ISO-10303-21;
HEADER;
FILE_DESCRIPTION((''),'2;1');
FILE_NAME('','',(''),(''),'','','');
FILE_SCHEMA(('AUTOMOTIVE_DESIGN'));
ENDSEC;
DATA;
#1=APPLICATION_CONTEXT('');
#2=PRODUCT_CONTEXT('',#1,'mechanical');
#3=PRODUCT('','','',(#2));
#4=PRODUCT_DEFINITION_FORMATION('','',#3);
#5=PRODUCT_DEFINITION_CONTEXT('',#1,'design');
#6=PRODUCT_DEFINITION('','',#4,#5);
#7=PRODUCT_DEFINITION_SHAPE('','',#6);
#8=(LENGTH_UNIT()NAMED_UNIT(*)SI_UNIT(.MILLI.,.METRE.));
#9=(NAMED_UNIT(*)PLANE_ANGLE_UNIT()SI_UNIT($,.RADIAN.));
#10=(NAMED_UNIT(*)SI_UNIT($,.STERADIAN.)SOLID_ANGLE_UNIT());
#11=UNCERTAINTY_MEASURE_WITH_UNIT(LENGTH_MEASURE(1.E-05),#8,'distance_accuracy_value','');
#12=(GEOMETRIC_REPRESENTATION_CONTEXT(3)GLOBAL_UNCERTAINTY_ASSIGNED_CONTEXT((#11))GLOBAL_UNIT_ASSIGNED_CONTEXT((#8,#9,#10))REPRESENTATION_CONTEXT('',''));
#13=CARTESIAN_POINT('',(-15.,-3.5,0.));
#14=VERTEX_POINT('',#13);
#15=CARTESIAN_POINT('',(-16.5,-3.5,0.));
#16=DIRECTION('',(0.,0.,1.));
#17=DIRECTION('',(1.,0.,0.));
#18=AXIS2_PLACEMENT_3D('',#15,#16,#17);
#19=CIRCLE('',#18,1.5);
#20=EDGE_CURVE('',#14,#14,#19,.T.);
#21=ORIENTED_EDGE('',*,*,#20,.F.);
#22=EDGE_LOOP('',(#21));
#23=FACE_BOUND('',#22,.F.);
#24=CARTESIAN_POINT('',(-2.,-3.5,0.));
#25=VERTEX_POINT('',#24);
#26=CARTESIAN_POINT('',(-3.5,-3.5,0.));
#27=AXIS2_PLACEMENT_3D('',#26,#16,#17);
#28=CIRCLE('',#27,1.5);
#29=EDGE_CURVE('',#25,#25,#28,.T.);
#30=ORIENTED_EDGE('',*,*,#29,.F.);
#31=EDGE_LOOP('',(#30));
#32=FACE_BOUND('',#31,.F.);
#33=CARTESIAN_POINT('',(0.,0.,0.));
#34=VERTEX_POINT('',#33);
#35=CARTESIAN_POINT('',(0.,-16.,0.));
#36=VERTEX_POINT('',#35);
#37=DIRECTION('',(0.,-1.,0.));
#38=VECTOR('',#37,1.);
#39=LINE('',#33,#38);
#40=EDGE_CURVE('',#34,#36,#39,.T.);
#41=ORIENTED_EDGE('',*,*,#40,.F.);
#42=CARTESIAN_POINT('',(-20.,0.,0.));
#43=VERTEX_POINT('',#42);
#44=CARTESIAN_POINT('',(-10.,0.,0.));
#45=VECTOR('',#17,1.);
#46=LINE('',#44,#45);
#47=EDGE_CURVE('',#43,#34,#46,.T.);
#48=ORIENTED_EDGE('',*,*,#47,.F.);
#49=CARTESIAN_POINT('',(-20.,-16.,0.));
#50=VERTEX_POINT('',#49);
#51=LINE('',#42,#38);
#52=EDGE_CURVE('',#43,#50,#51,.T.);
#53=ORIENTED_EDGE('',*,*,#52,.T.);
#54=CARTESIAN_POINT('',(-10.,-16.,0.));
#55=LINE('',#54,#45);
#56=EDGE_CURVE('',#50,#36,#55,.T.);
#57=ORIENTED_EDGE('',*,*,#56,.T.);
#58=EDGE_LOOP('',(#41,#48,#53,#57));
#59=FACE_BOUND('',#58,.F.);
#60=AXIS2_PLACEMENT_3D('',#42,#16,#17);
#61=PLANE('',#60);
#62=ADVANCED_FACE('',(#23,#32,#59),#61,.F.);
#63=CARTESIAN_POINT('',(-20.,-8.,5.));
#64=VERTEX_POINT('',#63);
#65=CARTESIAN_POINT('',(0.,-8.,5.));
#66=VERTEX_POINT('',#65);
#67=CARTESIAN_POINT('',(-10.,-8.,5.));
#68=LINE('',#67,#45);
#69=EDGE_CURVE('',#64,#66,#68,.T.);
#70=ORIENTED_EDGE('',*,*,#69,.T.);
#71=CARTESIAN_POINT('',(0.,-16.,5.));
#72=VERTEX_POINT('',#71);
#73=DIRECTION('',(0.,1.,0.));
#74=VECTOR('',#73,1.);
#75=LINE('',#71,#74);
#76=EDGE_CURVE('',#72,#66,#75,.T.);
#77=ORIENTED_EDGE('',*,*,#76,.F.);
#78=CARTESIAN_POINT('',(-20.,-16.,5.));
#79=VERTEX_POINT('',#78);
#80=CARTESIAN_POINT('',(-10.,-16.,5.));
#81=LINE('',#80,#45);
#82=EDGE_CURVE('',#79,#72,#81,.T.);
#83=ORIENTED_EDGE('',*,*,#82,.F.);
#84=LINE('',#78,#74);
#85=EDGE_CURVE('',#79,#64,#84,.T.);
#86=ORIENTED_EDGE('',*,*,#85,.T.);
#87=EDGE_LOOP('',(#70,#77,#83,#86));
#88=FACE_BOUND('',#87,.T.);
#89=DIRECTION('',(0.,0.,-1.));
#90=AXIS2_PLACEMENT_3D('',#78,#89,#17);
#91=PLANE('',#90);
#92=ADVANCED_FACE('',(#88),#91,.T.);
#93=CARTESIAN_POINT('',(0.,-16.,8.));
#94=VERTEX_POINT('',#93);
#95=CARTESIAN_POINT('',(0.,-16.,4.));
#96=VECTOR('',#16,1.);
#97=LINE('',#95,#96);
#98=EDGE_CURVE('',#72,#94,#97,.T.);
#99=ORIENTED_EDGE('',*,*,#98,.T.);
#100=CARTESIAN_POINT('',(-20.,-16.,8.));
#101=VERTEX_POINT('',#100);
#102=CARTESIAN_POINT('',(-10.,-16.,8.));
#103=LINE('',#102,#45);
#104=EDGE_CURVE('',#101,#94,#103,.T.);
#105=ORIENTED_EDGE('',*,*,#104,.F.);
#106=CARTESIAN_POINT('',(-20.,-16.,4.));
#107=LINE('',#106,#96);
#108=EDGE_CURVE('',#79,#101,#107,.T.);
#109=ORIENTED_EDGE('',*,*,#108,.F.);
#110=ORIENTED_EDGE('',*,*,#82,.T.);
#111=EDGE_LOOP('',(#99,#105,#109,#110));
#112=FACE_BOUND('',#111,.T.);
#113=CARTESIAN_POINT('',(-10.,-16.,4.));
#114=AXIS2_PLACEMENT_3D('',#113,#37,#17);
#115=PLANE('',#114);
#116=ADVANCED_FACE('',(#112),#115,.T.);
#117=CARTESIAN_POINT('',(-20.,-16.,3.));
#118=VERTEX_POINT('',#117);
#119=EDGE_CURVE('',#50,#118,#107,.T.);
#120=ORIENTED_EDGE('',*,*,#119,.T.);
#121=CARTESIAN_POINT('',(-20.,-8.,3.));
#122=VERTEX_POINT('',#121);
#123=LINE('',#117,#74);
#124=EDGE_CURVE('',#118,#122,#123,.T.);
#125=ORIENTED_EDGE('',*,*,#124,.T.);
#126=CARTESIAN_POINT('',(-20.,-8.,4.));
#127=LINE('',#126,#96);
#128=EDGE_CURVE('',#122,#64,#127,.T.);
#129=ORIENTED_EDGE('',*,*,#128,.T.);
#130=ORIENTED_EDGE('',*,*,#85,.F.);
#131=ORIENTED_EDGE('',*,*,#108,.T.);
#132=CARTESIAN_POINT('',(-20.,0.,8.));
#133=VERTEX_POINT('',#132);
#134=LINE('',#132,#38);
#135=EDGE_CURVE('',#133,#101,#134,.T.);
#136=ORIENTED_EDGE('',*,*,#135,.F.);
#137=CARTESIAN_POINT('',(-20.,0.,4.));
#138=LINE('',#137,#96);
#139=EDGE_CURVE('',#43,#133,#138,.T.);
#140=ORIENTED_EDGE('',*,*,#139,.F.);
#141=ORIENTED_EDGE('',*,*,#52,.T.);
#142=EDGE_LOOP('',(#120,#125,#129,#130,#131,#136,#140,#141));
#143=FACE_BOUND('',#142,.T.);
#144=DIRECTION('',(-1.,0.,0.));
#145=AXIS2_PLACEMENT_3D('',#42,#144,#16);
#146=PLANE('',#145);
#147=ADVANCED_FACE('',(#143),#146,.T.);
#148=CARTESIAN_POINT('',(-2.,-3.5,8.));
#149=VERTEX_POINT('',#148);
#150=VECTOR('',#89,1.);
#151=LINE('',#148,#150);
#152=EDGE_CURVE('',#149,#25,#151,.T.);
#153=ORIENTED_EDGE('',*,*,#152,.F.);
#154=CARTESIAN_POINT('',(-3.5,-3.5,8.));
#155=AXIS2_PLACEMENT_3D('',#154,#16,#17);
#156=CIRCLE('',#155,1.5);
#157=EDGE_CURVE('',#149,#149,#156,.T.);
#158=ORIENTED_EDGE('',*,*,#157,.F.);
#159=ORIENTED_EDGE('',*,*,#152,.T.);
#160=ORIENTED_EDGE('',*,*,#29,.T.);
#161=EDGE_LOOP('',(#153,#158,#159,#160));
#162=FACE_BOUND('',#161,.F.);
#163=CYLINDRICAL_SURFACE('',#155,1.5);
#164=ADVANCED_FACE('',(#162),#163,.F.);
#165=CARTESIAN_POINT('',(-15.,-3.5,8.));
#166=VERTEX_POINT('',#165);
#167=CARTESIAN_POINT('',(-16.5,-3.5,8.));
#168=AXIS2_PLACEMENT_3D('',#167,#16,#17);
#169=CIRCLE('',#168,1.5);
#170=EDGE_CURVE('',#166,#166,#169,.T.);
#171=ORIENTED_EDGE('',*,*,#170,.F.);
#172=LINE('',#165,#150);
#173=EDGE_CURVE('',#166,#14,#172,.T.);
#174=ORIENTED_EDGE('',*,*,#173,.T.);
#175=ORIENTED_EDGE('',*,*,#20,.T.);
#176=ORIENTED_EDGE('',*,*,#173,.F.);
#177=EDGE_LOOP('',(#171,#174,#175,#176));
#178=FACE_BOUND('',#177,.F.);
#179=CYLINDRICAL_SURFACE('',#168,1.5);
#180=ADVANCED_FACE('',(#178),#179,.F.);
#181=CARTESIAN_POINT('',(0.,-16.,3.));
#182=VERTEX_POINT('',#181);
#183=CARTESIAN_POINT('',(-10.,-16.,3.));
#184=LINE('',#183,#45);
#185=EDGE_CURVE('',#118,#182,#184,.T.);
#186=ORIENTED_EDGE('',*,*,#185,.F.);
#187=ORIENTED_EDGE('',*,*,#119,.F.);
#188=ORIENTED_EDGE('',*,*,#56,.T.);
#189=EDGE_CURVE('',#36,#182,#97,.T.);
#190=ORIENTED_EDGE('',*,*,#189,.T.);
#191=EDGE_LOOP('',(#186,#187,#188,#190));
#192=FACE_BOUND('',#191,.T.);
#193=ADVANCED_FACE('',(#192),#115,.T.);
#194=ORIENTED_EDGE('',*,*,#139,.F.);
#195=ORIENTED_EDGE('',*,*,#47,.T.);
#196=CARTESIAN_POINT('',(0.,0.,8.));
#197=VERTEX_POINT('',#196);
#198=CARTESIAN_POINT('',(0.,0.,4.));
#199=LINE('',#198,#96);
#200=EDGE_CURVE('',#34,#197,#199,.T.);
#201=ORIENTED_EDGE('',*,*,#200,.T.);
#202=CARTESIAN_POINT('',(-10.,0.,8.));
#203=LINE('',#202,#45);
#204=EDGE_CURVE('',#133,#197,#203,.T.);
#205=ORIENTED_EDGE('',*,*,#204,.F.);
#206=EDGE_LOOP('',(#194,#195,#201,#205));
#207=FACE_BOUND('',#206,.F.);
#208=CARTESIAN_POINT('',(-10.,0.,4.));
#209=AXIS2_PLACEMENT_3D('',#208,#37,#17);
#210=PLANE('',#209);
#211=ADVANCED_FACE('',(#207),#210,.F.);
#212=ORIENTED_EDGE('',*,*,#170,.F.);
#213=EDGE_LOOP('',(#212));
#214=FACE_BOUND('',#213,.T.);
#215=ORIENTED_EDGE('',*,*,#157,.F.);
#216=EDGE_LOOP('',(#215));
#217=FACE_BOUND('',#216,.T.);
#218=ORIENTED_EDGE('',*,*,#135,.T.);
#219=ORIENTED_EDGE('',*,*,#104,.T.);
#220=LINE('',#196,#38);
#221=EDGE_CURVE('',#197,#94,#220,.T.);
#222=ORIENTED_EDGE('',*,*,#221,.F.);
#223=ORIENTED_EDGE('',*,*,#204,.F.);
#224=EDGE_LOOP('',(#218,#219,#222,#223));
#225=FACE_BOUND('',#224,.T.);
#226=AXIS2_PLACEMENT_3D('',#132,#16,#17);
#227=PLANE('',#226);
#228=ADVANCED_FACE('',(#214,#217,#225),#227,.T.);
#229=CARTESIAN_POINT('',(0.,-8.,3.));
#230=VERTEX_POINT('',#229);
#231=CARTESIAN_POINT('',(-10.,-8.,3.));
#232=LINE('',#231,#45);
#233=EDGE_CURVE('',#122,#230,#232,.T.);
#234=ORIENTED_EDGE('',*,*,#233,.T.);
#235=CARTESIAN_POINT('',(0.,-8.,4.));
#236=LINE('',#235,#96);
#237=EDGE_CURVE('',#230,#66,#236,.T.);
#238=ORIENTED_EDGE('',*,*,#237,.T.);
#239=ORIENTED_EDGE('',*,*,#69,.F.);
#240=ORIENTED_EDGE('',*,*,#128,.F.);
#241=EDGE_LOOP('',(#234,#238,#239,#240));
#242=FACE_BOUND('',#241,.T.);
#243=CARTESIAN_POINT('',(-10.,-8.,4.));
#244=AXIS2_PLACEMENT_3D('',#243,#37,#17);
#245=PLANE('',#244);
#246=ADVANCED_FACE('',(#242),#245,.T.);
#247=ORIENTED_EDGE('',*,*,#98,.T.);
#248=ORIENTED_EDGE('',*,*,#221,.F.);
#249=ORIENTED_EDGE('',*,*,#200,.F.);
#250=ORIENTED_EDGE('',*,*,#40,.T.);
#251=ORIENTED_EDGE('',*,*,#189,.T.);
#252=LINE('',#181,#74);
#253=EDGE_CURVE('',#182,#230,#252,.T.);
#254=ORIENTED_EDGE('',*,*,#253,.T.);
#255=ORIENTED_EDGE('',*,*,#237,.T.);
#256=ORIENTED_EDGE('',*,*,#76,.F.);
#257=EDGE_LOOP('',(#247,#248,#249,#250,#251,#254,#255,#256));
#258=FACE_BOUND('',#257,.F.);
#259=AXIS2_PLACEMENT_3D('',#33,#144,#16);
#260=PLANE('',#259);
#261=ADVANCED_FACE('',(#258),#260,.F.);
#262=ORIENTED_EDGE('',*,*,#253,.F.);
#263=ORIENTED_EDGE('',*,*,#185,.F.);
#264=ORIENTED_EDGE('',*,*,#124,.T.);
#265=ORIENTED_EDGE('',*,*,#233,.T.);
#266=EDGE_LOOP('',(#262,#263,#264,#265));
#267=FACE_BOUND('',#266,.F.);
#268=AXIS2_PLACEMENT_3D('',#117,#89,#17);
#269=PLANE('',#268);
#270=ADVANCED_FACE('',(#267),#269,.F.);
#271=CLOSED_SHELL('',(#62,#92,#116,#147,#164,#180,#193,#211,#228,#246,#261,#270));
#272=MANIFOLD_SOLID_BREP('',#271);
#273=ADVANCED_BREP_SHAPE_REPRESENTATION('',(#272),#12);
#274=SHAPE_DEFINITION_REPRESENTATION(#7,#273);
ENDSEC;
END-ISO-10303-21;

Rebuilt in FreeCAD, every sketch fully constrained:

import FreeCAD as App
import Part
import Sketcher

V = App.Vector
Q = App.Units.Quantity

doc = App.newDocument("Part")
body = doc.addObject("PartDesign::Body", "Body")

sketch1 = body.newObject("Sketcher::SketchObject", "Sketch")
sketch1.AttachmentSupport = (doc.getObject("XZ_Plane"), [""])
sketch1.MapMode = "FlatFace"
sketch1.addGeometry([
    Part.LineSegment(V(-20, 8, 0), V(-20, 0, 0)),
    Part.LineSegment(V(-20, 0, 0), V(0, 0, 0)),
    Part.LineSegment(V(0, 0, 0), V(0, 8, 0)),
    Part.LineSegment(V(0, 8, 0), V(-20, 8, 0)),
], False)
sketch1.addConstraint([
    Sketcher.Constraint("Coincident", 0, 2, 1, 1),
    Sketcher.Constraint("Coincident", 1, 2, 2, 1),
    Sketcher.Constraint("Coincident", 2, 2, 3, 1),
    Sketcher.Constraint("Coincident", 3, 2, 0, 1),
    Sketcher.Constraint("Vertical", 0),
    Sketcher.Constraint("Horizontal", 1),
    Sketcher.Constraint("Vertical", 2),
    Sketcher.Constraint("Horizontal", 3),
    Sketcher.Constraint("Coincident", 1, 2, -1, 1),
    Sketcher.Constraint("DistanceX", 1, 1, 1, 2, Q("20 mm")),
    Sketcher.Constraint("DistanceY", 0, 2, 0, 1, Q("8 mm")),
])
pad1 = body.newObject("PartDesign::Pad", "Pad")
pad1.Profile = sketch1
pad1.Length = 16

sketch2 = body.newObject("Sketcher::SketchObject", "Sketch001")
sketch2.AttachmentSupport = (doc.getObject("XZ_Plane"), [""])
sketch2.MapMode = "FlatFace"
sketch2.AttachmentOffset = App.Placement(V(0, 0, 16), App.Rotation())
sketch2.addGeometry([
    Part.LineSegment(V(-20, 5, 0), V(-20, 3, 0)),
    Part.LineSegment(V(-20, 3, 0), V(0, 3, 0)),
    Part.LineSegment(V(0, 3, 0), V(0, 5, 0)),
    Part.LineSegment(V(0, 5, 0), V(-20, 5, 0)),
], False)
sketch2.addConstraint([
    Sketcher.Constraint("Coincident", 0, 2, 1, 1),
    Sketcher.Constraint("Coincident", 1, 2, 2, 1),
    Sketcher.Constraint("Coincident", 2, 2, 3, 1),
    Sketcher.Constraint("Coincident", 3, 2, 0, 1),
    Sketcher.Constraint("Vertical", 0),
    Sketcher.Constraint("Horizontal", 1),
    Sketcher.Constraint("Vertical", 2),
    Sketcher.Constraint("Horizontal", 3),
    Sketcher.Constraint("PointOnObject", 1, 2, -2),
    Sketcher.Constraint("DistanceX", 1, 1, 1, 2, Q("20 mm")),
    Sketcher.Constraint("DistanceY", 0, 2, 0, 1, Q("2 mm")),
    Sketcher.Constraint("DistanceY", -1, 1, 0, 2, Q("3 mm")),
])
pocket1 = body.newObject("PartDesign::Pocket", "Pocket")
pocket1.Profile = sketch2
pocket1.Length = 8

sketch3 = body.newObject("Sketcher::SketchObject", "Sketch002")
sketch3.AttachmentSupport = (doc.getObject("XY_Plane"), [""])
sketch3.MapMode = "FlatFace"
sketch3.AttachmentOffset = App.Placement(V(0, 0, 8), App.Rotation())
sketch3.addGeometry([
    Part.Circle(V(-16.5, -3.5, 0), V(0, 0, 1), 1.5),
    Part.Circle(V(-3.5, -3.5, 0), V(0, 0, 1), 1.5),
], False)
sketch3.addConstraint([
    Sketcher.Constraint("Equal", 0, 1),
    Sketcher.Constraint("Horizontal", 0, 3, 1, 3),
    Sketcher.Constraint("Diameter", 0, Q("3 mm")),
    Sketcher.Constraint("DistanceX", 0, 3, 1, 3, Q("13 mm")),
    Sketcher.Constraint("DistanceX", 0, 3, -1, 1, Q("16.5 mm")),
    Sketcher.Constraint("DistanceY", 0, 3, -1, 1, Q("3.5 mm")),
])
pocket2 = body.newObject("PartDesign::Pocket", "Pocket001")
pocket2.Profile = sketch3
pocket2.Length = 25

doc.recompute()
